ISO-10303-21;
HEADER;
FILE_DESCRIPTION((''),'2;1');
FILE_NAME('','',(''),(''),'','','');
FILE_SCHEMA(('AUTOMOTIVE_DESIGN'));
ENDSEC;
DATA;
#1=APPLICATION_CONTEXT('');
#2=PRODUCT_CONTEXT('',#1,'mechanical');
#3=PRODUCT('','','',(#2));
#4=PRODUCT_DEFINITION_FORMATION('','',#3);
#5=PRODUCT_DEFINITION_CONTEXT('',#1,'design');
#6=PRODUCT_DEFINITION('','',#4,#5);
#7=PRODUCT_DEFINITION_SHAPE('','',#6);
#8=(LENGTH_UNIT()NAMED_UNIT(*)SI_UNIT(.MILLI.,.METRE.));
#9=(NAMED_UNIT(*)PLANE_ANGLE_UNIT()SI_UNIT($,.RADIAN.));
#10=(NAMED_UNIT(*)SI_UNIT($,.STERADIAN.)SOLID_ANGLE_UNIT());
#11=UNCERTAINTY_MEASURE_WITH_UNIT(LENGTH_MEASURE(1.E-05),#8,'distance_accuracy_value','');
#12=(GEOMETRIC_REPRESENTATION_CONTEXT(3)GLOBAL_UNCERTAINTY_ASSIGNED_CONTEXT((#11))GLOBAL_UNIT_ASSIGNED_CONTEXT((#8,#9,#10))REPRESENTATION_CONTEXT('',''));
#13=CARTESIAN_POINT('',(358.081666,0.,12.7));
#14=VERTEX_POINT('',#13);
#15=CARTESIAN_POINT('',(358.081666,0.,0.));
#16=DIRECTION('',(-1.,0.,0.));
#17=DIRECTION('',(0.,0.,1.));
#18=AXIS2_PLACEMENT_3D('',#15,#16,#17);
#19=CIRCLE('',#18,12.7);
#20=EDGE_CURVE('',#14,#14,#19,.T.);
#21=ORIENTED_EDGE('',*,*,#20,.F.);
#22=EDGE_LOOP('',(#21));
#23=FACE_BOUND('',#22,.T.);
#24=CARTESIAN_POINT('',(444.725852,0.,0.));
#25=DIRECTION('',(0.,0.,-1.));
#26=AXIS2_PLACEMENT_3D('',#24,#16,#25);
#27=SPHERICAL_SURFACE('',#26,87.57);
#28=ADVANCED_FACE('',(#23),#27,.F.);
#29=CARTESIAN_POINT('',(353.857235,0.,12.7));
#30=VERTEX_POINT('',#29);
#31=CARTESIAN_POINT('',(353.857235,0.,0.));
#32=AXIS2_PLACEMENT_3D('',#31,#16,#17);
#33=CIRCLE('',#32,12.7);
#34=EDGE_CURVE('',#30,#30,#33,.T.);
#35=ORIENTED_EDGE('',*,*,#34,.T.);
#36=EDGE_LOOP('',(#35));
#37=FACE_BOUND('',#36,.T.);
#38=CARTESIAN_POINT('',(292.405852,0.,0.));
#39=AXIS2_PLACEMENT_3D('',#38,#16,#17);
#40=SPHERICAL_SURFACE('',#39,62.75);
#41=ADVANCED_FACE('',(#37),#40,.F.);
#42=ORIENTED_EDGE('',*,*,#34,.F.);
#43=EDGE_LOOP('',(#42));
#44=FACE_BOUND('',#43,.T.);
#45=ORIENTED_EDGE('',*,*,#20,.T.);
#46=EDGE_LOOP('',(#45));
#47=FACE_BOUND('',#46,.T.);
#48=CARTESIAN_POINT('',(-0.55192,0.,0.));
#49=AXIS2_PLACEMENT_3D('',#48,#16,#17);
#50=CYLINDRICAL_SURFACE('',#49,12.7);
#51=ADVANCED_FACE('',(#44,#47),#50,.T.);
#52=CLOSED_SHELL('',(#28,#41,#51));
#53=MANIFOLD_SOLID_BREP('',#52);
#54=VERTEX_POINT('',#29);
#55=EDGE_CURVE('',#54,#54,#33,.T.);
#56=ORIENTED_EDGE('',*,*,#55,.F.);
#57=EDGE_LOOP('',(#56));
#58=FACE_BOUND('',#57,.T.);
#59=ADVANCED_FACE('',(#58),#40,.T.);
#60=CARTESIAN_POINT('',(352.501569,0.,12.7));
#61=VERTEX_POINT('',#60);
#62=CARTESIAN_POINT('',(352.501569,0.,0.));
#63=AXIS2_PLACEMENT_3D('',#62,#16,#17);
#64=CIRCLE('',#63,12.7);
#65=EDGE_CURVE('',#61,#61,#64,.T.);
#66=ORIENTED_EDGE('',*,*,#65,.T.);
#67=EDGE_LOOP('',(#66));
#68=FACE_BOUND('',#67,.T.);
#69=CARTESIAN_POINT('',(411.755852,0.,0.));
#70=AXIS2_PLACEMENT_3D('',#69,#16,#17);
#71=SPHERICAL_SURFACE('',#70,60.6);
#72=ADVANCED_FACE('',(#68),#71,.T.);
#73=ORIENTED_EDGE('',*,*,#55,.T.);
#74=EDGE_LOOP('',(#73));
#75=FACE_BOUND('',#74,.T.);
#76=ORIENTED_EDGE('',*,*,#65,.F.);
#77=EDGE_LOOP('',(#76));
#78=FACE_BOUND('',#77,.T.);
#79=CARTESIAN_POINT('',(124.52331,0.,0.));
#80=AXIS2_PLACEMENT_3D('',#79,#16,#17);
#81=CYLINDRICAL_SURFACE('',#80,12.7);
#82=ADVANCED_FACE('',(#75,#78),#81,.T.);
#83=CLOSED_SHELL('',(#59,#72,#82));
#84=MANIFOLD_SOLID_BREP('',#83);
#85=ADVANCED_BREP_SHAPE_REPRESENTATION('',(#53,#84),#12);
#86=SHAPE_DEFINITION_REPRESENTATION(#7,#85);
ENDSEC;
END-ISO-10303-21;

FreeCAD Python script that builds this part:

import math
import FreeCAD as App
import Part
import Sketcher
from FreeCAD import Vector

doc = App.newDocument("Part")
params = doc.addObject("Spreadsheet::Sheet", "Params")
for row, (alias, value) in enumerate([
    ("sketch1_radius", "60.6 mm"),
    ("sketch1_width", "4 mm"),
    ("sketch1_radius2", "62.75 mm"),
    ("revolution_angle", "360 deg"),
    ("sketch2_width", "2 mm"),
    ("sketch2_radius", "62.75 mm"),
    ("sketch2_radius2", "87.57 mm"),
    ("revolution2_angle", "360 deg"),
], start=1):
    params.set(f"A{row}", alias)
    params.set(f"B{row}", "=" + value)
    params.setAlias(f"B{row}", alias)

body = doc.addObject("PartDesign::Body", "Body")

# Sketch on XZ plane
sketch1 = body.newObject("Sketcher::SketchObject", "Sketch")
sketch1.AttachmentSupport = (doc.getObject("XZ_Plane"), [""])
sketch1.MapMode = "FlatFace"
sketch1.addGeometry([
    Part.ArcOfCircle(Part.Circle(Vector(411.8, 0, 0), Vector(0, 0, 1), 60.6), math.radians(-180), math.radians(-167.9)),
    Part.LineSegment(Vector(351.2, 0, 0), Vector(355.2, 0, 0)),
    Part.ArcOfCircle(Part.Circle(Vector(292.4, 0, 0), Vector(0, 0, 1), 62.7), math.radians(-11.68), math.radians(0)),
    Part.LineSegment(Vector(353.9, -12.7, 0), Vector(352.5, -12.7, 0)),
], False)
sketch1.addConstraint([
    Sketcher.Constraint("Coincident", 0, 1, 1, 1),
    Sketcher.Constraint("Coincident", 1, 2, 2, 2),
    Sketcher.Constraint("Coincident", 2, 1, 3, 1),
    Sketcher.Constraint("Coincident", 3, 2, 0, 2),
    Sketcher.Constraint("Horizontal", 1),
    Sketcher.Constraint("Horizontal", 3),
    Sketcher.Constraint("PointOnObject", 0, 3, -1),
    Sketcher.Constraint("PointOnObject", 2, 3, -1),
    Sketcher.Constraint("PointOnObject", 0, 1, -1),
    Sketcher.Constraint("Radius", 0, 60.6),
    Sketcher.Constraint("DistanceX", 1, 1, 1, 2, 4.0),
    Sketcher.Constraint("Radius", 2, 62.75),
    Sketcher.Constraint("DistanceY", 2, 1, -1, 1, 12.7),
    Sketcher.Constraint("DistanceX", -1, 1, 0, 3, 411.755852),
])
sketch1.setExpression("Constraints[9]", "Params.sketch1_radius")
sketch1.setExpression("Constraints[10]", "Params.sketch1_width")
sketch1.setExpression("Constraints[11]", "Params.sketch1_radius2")
revolution = body.newObject("PartDesign::Revolution", "Revolution")
revolution.Profile = sketch1
revolution.ReferenceAxis = (sketch1, ["H_Axis"])
revolution.setExpression("Angle", "Params.revolution_angle")
body2 = doc.addObject("PartDesign::Body", "Body001")

# Sketch on XZ plane
sketch2 = body2.newObject("Sketcher::SketchObject", "Sketch001")
sketch2.AttachmentSupport = (doc.getObject("XZ_Plane001"), [""])
sketch2.MapMode = "FlatFace"
sketch2.addGeometry([
    Part.LineSegment(Vector(358.1, -12.7, 0), Vector(353.9, -12.7, 0)),
    Part.ArcOfCircle(Part.Circle(Vector(292.4, 0, 0), Vector(0, 0, 1), 62.7), math.radians(-11.68), math.radians(0)),
    Part.LineSegment(Vector(355.2, 0, 0), Vector(357.2, 0, 0)),
    Part.ArcOfCircle(Part.Circle(Vector(444.7, 0, 0), Vector(0, 0, 1), 87.6), math.radians(-180), math.radians(-171.66)),
], False)
sketch2.addConstraint([
    Sketcher.Constraint("Coincident", 0, 2, 1, 1),
    Sketcher.Constraint("Coincident", 1, 2, 2, 1),
    Sketcher.Constraint("Coincident", 2, 2, 3, 1),
    Sketcher.Constraint("Coincident", 3, 2, 0, 1),
    Sketcher.Constraint("Horizontal", 0),
    Sketcher.Constraint("Horizontal", 2),
    Sketcher.Constraint("PointOnObject", 1, 3, -1),
    Sketcher.Constraint("PointOnObject", 3, 3, -1),
    Sketcher.Constraint("PointOnObject", 1, 2, -1),
    Sketcher.Constraint("DistanceX", 2, 1, 2, 2, 2.0),
    Sketcher.Constraint("Radius", 1, 62.75),
    Sketcher.Constraint("Radius", 3, 87.57),
    Sketcher.Constraint("DistanceY", 0, 2, -1, 1, 12.7),
    Sketcher.Constraint("DistanceX", -1, 1, 1, 3, 292.405852),
])
sketch2.setExpression("Constraints[9]", "Params.sketch2_width")
sketch2.setExpression("Constraints[10]", "Params.sketch2_radius")
sketch2.setExpression("Constraints[11]", "Params.sketch2_radius2")
revolution2 = body2.newObject("PartDesign::Revolution", "Revolution001")
revolution2.Profile = sketch2
revolution2.ReferenceAxis = (sketch2, ["H_Axis"])
revolution2.setExpression("Angle", "Params.revolution2_angle")

doc.recompute()
